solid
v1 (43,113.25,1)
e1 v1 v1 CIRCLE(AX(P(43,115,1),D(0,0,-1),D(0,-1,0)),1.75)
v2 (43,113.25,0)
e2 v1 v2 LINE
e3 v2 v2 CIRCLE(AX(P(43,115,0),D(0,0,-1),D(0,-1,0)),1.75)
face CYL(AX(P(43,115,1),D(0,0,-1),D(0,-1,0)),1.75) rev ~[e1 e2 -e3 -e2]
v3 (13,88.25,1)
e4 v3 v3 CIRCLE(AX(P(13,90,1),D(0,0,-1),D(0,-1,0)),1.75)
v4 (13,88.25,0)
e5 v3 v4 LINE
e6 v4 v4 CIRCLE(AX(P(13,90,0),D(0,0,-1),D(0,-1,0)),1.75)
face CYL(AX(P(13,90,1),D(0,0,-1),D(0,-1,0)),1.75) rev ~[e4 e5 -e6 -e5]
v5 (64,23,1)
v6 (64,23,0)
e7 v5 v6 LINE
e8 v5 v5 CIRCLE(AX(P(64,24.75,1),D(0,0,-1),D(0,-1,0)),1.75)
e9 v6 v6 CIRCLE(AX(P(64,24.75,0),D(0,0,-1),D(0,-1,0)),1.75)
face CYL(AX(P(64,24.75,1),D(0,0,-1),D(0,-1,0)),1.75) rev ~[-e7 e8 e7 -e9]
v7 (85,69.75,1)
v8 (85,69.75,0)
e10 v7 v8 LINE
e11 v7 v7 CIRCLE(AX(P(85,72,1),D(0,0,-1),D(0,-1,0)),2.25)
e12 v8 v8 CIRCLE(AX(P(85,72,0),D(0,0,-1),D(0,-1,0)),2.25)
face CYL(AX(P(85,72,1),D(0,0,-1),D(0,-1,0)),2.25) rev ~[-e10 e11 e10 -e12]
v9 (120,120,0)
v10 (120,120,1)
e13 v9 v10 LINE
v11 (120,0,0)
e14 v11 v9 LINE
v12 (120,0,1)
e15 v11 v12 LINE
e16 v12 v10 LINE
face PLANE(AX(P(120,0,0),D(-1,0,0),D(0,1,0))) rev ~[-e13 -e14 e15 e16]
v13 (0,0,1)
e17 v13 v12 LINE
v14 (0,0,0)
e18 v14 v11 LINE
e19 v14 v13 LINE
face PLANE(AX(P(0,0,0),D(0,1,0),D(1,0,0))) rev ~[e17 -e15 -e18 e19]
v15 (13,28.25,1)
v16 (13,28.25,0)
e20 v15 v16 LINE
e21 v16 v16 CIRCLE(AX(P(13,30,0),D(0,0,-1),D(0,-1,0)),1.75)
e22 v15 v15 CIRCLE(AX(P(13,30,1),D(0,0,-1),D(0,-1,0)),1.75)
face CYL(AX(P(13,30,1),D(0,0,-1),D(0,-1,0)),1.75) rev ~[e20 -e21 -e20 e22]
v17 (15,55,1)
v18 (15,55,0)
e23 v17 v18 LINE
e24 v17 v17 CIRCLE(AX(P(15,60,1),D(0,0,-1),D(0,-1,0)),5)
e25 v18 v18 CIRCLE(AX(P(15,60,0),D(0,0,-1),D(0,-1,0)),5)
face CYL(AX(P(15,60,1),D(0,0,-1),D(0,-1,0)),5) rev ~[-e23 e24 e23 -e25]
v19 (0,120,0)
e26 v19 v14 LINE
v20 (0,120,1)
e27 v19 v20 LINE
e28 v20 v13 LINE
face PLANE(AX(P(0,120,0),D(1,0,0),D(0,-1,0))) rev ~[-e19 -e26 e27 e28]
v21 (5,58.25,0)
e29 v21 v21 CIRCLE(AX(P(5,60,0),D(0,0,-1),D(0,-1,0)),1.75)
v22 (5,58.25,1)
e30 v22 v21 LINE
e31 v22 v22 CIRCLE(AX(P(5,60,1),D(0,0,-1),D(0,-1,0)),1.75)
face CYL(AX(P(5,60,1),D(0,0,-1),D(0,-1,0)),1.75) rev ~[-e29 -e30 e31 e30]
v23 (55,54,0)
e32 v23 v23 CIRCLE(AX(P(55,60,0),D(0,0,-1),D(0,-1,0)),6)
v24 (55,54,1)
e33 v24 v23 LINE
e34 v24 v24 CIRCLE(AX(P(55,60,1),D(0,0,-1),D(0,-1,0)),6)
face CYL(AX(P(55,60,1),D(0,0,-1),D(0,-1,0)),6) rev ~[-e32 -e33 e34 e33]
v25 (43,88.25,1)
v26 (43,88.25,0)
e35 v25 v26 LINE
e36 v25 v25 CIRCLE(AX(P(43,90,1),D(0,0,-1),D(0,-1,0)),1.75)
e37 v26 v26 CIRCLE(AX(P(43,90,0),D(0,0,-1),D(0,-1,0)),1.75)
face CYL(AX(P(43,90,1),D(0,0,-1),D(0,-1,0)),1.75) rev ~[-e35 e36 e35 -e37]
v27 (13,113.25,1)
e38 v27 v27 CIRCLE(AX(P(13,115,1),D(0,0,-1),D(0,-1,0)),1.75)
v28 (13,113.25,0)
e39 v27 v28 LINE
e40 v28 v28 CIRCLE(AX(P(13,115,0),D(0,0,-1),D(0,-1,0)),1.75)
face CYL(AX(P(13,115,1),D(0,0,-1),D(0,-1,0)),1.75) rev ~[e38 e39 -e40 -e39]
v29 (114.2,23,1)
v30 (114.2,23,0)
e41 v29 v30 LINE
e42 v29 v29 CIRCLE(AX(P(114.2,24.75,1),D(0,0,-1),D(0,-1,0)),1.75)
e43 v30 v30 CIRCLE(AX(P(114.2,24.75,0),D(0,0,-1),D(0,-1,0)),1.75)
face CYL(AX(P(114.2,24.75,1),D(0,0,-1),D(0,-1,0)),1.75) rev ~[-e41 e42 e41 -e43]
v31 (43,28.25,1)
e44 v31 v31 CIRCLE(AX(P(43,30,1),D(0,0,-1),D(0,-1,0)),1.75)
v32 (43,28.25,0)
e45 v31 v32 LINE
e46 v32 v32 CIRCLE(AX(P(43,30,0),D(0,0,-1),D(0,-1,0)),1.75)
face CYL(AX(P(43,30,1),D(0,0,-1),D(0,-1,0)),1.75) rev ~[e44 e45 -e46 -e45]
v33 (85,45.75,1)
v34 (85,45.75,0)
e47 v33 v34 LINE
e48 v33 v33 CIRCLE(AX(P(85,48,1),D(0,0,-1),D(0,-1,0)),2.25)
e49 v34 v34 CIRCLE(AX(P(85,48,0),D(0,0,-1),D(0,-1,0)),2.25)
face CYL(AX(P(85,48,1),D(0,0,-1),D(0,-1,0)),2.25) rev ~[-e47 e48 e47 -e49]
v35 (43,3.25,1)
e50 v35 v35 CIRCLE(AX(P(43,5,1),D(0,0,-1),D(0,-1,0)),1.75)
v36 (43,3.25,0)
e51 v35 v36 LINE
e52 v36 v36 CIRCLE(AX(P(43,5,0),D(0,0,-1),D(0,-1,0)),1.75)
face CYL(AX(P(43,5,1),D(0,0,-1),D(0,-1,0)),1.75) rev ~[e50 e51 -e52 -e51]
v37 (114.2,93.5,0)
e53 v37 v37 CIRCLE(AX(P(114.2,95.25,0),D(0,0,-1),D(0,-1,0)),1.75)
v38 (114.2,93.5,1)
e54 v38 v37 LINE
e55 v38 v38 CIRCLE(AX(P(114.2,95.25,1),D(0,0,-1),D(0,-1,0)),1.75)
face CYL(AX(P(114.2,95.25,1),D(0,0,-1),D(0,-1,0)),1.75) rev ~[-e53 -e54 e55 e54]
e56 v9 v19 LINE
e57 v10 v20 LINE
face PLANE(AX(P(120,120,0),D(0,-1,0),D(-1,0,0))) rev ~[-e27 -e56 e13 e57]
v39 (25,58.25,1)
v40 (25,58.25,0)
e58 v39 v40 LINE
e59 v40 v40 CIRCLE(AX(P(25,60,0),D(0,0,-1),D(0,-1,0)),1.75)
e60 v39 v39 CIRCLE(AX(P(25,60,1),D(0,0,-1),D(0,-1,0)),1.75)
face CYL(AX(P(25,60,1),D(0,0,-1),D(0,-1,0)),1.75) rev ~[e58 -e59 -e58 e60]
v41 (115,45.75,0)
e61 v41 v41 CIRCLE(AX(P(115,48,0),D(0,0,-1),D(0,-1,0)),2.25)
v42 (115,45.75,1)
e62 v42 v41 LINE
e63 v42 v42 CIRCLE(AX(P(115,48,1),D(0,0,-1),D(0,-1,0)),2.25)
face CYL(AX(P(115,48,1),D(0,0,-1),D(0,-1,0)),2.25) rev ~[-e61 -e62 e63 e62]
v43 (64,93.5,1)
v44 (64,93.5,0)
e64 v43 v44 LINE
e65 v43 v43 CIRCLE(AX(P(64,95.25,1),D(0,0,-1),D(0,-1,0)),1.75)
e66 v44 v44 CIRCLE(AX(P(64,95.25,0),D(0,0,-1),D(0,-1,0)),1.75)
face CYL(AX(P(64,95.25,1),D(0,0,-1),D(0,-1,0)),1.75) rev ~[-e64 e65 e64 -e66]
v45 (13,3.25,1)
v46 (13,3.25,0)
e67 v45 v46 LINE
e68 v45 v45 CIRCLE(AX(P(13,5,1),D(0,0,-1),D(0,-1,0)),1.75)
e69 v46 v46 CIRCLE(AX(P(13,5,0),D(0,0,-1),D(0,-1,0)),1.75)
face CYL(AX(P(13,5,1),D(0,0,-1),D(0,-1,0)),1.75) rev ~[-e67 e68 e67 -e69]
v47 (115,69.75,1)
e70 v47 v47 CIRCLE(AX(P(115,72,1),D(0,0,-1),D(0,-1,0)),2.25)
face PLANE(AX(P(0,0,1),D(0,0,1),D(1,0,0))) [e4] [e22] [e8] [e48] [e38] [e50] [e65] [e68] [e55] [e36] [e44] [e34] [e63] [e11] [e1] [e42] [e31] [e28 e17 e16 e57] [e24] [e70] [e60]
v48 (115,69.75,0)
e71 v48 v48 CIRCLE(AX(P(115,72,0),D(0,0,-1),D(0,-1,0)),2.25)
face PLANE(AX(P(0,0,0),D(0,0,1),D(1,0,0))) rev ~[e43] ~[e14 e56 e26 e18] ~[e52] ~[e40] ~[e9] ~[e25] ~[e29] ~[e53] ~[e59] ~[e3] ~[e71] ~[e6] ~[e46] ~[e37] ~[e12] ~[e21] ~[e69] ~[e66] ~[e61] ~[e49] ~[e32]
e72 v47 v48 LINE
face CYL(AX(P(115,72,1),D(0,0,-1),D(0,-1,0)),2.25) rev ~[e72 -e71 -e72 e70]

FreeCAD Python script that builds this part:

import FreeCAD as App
import Part
import Sketcher
from FreeCAD import Vector
Q = App.Units.Quantity

doc = App.newDocument("Part")
params = doc.addObject("Spreadsheet::Sheet", "Params")
for row, (alias, value) in enumerate([
    ("sketch1_width", "120 mm"),
    ("pad1_length", "1 mm"),
    ("sketch2_diameter", "3.5 mm"),
    ("hole_diameter", "3.5 mm"),
    ("sketch3_diameter", "3.5 mm"),
    ("hole2_diameter", "3.5 mm"),
    ("sketch4_diameter", "3.5 mm"),
    ("hole3_diameter", "3.5 mm"),
    ("sketch5_diameter", "10 mm"),
    ("hole4_diameter", "10 mm"),
    ("sketch6_diameter", "12 mm"),
    ("hole5_diameter", "12 mm"),
    ("sketch7_diameter", "3.5 mm"),
    ("hole6_diameter", "3.5 mm"),
    ("sketch8_diameter", "4.5 mm"),
    ("hole7_diameter", "4.5 mm"),
], start=1):
    params.set(f"A{row}", alias)
    params.set(f"B{row}", "=" + value)
    params.setAlias(f"B{row}", alias)

body = doc.addObject("PartDesign::Body", "Body")

sketch1 = doc.addObject("Sketcher::SketchObject", "Sketch")
body.addObject(sketch1)
sketch1.AttachmentSupport = (doc.XY_Plane, [""])
sketch1.MapMode = "FlatFace"
sketch1.addGeometry([
    Part.LineSegment(Vector(0, 120, 0), Vector(0, 0, 0)),
    Part.LineSegment(Vector(0, 0, 0), Vector(120, 0, 0)),
    Part.LineSegment(Vector(120, 0, 0), Vector(120, 120, 0)),
    Part.LineSegment(Vector(120, 120, 0), Vector(0, 120, 0)),
], False)
sketch1.addConstraint([
    Sketcher.Constraint("Coincident", 0, 2, 1, 1),
    Sketcher.Constraint("Coincident", 1, 2, 2, 1),
    Sketcher.Constraint("Coincident", 2, 2, 3, 1),
    Sketcher.Constraint("Coincident", 3, 2, 0, 1),
    Sketcher.Constraint("Vertical", 0),
    Sketcher.Constraint("Horizontal", 1),
    Sketcher.Constraint("Vertical", 2),
    Sketcher.Constraint("Horizontal", 3),
    Sketcher.Constraint("Coincident", 0, 2, -1, 1),
    Sketcher.Constraint("Equal", 3, 0),
    Sketcher.Constraint("DistanceX", 1, 1, 1, 2, Q("120 mm")),
])
sketch1.setExpression("Constraints[10]", "Params.sketch1_width")
pad1 = doc.addObject("PartDesign::Pad", "Pad")
body.addObject(pad1)
pad1.Profile = sketch1
pad1.setExpression("Length", "Params.pad1_length")

sketch2 = doc.addObject("Sketcher::SketchObject", "Sketch001")
body.addObject(sketch2)
sketch2.AttachmentSupport = (doc.XY_Plane, [""])
sketch2.MapMode = "FlatFace"
sketch2.AttachmentOffset = App.Placement(Vector(0, 0, 1), App.Rotation())
sketch2.addGeometry([
    Part.Circle(Vector(13, 115, 0), Vector(0, 0, 1), 1.75),
    Part.Circle(Vector(13, 90, 0), Vector(0, 0, 1), 1.75),
    Part.Circle(Vector(43, 115, 0), Vector(0, 0, 1), 1.75),
    Part.Circle(Vector(43, 90, 0), Vector(0, 0, 1), 1.75),
], False)
sketch2.addConstraint([
    Sketcher.Constraint("Equal", 0, 1),
    Sketcher.Constraint("Equal", 1, 2),
    Sketcher.Constraint("Equal", 2, 3),
    Sketcher.Constraint("Horizontal", 0, 3, 2, 3),
    Sketcher.Constraint("Horizontal", 1, 3, 3, 3),
    Sketcher.Constraint("Vertical", 0, 3, 1, 3),
    Sketcher.Constraint("Vertical", 2, 3, 3, 3),
    Sketcher.Constraint("Diameter", 0, Q("3.5 mm")),
    Sketcher.Constraint("DistanceX", -1, 1, 0, 3, Q("13 mm")),
    Sketcher.Constraint("DistanceY", -1, 1, 0, 3, Q("115 mm")),
    Sketcher.Constraint("DistanceY", -1, 1, 1, 3, Q("90 mm")),
    Sketcher.Constraint("DistanceX", -1, 1, 2, 3, Q("43 mm")),
])
sketch2.setExpression("Constraints[7]", "Params.sketch2_diameter")
doc.recompute()
hole = doc.addObject("PartDesign::Hole", "Hole")
body.addObject(hole)
hole.Profile = sketch2
hole.ThreadType = "None"
hole.setExpression("Diameter", "Params.hole_diameter")
hole.DepthType = "ThroughAll"

sketch3 = doc.addObject("Sketcher::SketchObject", "Sketch002")
body.addObject(sketch3)
sketch3.AttachmentSupport = (doc.XY_Plane, [""])
sketch3.MapMode = "FlatFace"
sketch3.AttachmentOffset = App.Placement(Vector(0, 0, 1), App.Rotation())
sketch3.addGeometry([
    Part.Circle(Vector(13, 5, 0), Vector(0, 0, 1), 1.75),
    Part.Circle(Vector(43, 5, 0), Vector(0, 0, 1), 1.75),
    Part.Circle(Vector(13, 30, 0), Vector(0, 0, 1), 1.75),
    Part.Circle(Vector(43, 30, 0), Vector(0, 0, 1), 1.75),
], False)
sketch3.addConstraint([
    Sketcher.Constraint("Equal", 0, 1),
    Sketcher.Constraint("Equal", 1, 2),
    Sketcher.Constraint("Equal", 2, 3),
    Sketcher.Constraint("Horizontal", 0, 3, 1, 3),
    Sketcher.Constraint("Horizontal", 2, 3, 3, 3),
    Sketcher.Constraint("Vertical", 0, 3, 2, 3),
    Sketcher.Constraint("Vertical", 1, 3, 3, 3),
    Sketcher.Constraint("Diameter", 0, Q("3.5 mm")),
    Sketcher.Constraint("DistanceX", -1, 1, 0, 3, Q("13 mm")),
    Sketcher.Constraint("DistanceY", -1, 1, 0, 3, Q("5 mm")),
    Sketcher.Constraint("DistanceX", -1, 1, 1, 3, Q("43 mm")),
    Sketcher.Constraint("DistanceY", -1, 1, 2, 3, Q("30 mm")),
])
sketch3.setExpression("Constraints[7]", "Params.sketch3_diameter")
doc.recompute()
hole2 = doc.addObject("PartDesign::Hole", "Hole001")
body.addObject(hole2)
hole2.Profile = sketch3
hole2.ThreadType = "None"
hole2.setExpression("Diameter", "Params.hole2_diameter")
hole2.DepthType = "ThroughAll"

sketch4 = doc.addObject("Sketcher::SketchObject", "Sketch003")
body.addObject(sketch4)
sketch4.AttachmentSupport = (doc.XY_Plane, [""])
sketch4.MapMode = "FlatFace"
sketch4.AttachmentOffset = App.Placement(Vector(0, 0, 1), App.Rotation())
sketch4.addGeometry([
    Part.Circle(Vector(5, 60, 0), Vector(0, 0, 1), 1.75),
    Part.Circle(Vector(25, 60, 0), Vector(0, 0, 1), 1.75),
], False)
sketch4.addConstraint([
    Sketcher.Constraint("Equal", 0, 1),
    Sketcher.Constraint("Horizontal", 0, 3, 1, 3),
    Sketcher.Constraint("Diameter", 0, Q("3.5 mm")),
    Sketcher.Constraint("DistanceX", -1, 1, 0, 3, Q("5 mm")),
    Sketcher.Constraint("DistanceY", -1, 1, 0, 3, Q("60 mm")),
    Sketcher.Constraint("DistanceX", -1, 1, 1, 3, Q("25 mm")),
])
sketch4.setExpression("Constraints[2]", "Params.sketch4_diameter")
doc.recompute()
hole3 = doc.addObject("PartDesign::Hole", "Hole002")
body.addObject(hole3)
hole3.Profile = sketch4
hole3.ThreadType = "None"
hole3.setExpression("Diameter", "Params.hole3_diameter")
hole3.DepthType = "ThroughAll"

sketch5 = doc.addObject("Sketcher::SketchObject", "Sketch004")
body.addObject(sketch5)
sketch5.AttachmentSupport = (doc.XY_Plane, [""])
sketch5.MapMode = "FlatFace"
sketch5.AttachmentOffset = App.Placement(Vector(0, 0, 1), App.Rotation())
sketch5.addGeometry(Part.Circle(Vector(15, 60, 0), Vector(0, 0, 1), 5), False)
sketch5.addConstraint([
    Sketcher.Constraint("Diameter", 0, Q("10 mm")),
    Sketcher.Constraint("DistanceX", -1, 1, 0, 3, Q("15 mm")),
    Sketcher.Constraint("DistanceY", -1, 1, 0, 3, Q("60 mm")),
])
sketch5.setExpression("Constraints[0]", "Params.sketch5_diameter")
doc.recompute()
hole4 = doc.addObject("PartDesign::Hole", "Hole003")
body.addObject(hole4)
hole4.Profile = sketch5
hole4.ThreadType = "None"
hole4.setExpression("Diameter", "Params.hole4_diameter")
hole4.DepthType = "ThroughAll"

sketch6 = doc.addObject("Sketcher::SketchObject", "Sketch005")
body.addObject(sketch6)
sketch6.AttachmentSupport = (doc.XY_Plane, [""])
sketch6.MapMode = "FlatFace"
sketch6.AttachmentOffset = App.Placement(Vector(0, 0, 1), App.Rotation())
sketch6.addGeometry(Part.Circle(Vector(55, 60, 0), Vector(0, 0, 1), 6), False)
sketch6.addConstraint([
    Sketcher.Constraint("Diameter", 0, Q("12 mm")),
    Sketcher.Constraint("DistanceX", -1, 1, 0, 3, Q("55 mm")),
    Sketcher.Constraint("DistanceY", -1, 1, 0, 3, Q("60 mm")),
])
sketch6.setExpression("Constraints[0]", "Params.sketch6_diameter")
doc.recompute()
hole5 = doc.addObject("PartDesign::Hole", "Hole004")
body.addObject(hole5)
hole5.Profile = sketch6
hole5.ThreadType = "None"
hole5.setExpression("Diameter", "Params.hole5_diameter")
hole5.DepthType = "ThroughAll"

sketch7 = doc.addObject("Sketcher::SketchObject", "Sketch006")
body.addObject(sketch7)
sketch7.AttachmentSupport = (doc.XY_Plane, [""])
sketch7.MapMode = "FlatFace"
sketch7.AttachmentOffset = App.Placement(Vector(0, 0, 1), App.Rotation())
sketch7.addGeometry([
    Part.Circle(Vector(64, 95.25, 0), Vector(0, 0, 1), 1.75),
    Part.Circle(Vector(64, 24.75, 0), Vector(0, 0, 1), 1.75),
    Part.Circle(Vector(114.2, 95.25, 0), Vector(0, 0, 1), 1.75),
    Part.Circle(Vector(114.2, 24.75, 0), Vector(0, 0, 1), 1.75),
], False)
sketch7.addConstraint([
    Sketcher.Constraint("Equal", 0, 1),
    Sketcher.Constraint("Equal", 1, 2),
    Sketcher.Constraint("Equal", 2, 3),
    Sketcher.Constraint("Horizontal", 0, 3, 2, 3),
    Sketcher.Constraint("Horizontal", 1, 3, 3, 3),
    Sketcher.Constraint("Vertical", 0, 3, 1, 3),
    Sketcher.Constraint("Vertical", 2, 3, 3, 3),
    Sketcher.Constraint("Diameter", 0, Q("3.5 mm")),
    Sketcher.Constraint("DistanceX", -1, 1, 0, 3, Q("64 mm")),
    Sketcher.Constraint("DistanceX", -1, 1, 2, 3, Q("114.2 mm")),
    Sketcher.Constraint("DistanceY", 1, 3, 0, 3, Q("70.5 mm")),
    Sketcher.Constraint("DistanceY", -1, 1, 0, 3, Q("95.25 mm")),
])
sketch7.setExpression("Constraints[7]", "Params.sketch7_diameter")
doc.recompute()
hole6 = doc.addObject("PartDesign::Hole", "Hole005")
body.addObject(hole6)
hole6.Profile = sketch7
hole6.ThreadType = "None"
hole6.setExpression("Diameter", "Params.hole6_diameter")
hole6.DepthType = "ThroughAll"

sketch8 = doc.addObject("Sketcher::SketchObject", "Sketch007")
body.addObject(sketch8)
sketch8.AttachmentSupport = (doc.XY_Plane, [""])
sketch8.MapMode = "FlatFace"
sketch8.AttachmentOffset = App.Placement(Vector(0, 0, 1), App.Rotation())
sketch8.addGeometry([
    Part.Circle(Vector(85, 72, 0), Vector(0, 0, 1), 2.25),
    Part.Circle(Vector(85, 48, 0), Vector(0, 0, 1), 2.25),
    Part.Circle(Vector(115, 72, 0), Vector(0, 0, 1), 2.25),
    Part.Circle(Vector(115, 48, 0), Vector(0, 0, 1), 2.25),
], False)
sketch8.addConstraint([
    Sketcher.Constraint("Equal", 0, 1),
    Sketcher.Constraint("Equal", 1, 2),
    Sketcher.Constraint("Equal", 2, 3),
    Sketcher.Constraint("Horizontal", 0, 3, 2, 3),
    Sketcher.Constraint("Horizontal", 1, 3, 3, 3),
    Sketcher.Constraint("Vertical", 0, 3, 1, 3),
    Sketcher.Constraint("Vertical", 2, 3, 3, 3),
    Sketcher.Constraint("Diameter", 0, Q("4.5 mm")),
    Sketcher.Constraint("DistanceX", -1, 1, 0, 3, Q("85 mm")),
    Sketcher.Constraint("DistanceY", -1, 1, 0, 3, Q("72 mm")),
    Sketcher.Constraint("DistanceY", -1, 1, 1, 3, Q("48 mm")),
    Sketcher.Constraint("DistanceX", -1, 1, 2, 3, Q("115 mm")),
])
sketch8.setExpression("Constraints[7]", "Params.sketch8_diameter")
doc.recompute()
hole7 = doc.addObject("PartDesign::Hole", "Hole006")
body.addObject(hole7)
hole7.Profile = sketch8
hole7.ThreadType = "None"
hole7.setExpression("Diameter", "Params.hole7_diameter")
hole7.DepthType = "ThroughAll"

doc.recompute()
